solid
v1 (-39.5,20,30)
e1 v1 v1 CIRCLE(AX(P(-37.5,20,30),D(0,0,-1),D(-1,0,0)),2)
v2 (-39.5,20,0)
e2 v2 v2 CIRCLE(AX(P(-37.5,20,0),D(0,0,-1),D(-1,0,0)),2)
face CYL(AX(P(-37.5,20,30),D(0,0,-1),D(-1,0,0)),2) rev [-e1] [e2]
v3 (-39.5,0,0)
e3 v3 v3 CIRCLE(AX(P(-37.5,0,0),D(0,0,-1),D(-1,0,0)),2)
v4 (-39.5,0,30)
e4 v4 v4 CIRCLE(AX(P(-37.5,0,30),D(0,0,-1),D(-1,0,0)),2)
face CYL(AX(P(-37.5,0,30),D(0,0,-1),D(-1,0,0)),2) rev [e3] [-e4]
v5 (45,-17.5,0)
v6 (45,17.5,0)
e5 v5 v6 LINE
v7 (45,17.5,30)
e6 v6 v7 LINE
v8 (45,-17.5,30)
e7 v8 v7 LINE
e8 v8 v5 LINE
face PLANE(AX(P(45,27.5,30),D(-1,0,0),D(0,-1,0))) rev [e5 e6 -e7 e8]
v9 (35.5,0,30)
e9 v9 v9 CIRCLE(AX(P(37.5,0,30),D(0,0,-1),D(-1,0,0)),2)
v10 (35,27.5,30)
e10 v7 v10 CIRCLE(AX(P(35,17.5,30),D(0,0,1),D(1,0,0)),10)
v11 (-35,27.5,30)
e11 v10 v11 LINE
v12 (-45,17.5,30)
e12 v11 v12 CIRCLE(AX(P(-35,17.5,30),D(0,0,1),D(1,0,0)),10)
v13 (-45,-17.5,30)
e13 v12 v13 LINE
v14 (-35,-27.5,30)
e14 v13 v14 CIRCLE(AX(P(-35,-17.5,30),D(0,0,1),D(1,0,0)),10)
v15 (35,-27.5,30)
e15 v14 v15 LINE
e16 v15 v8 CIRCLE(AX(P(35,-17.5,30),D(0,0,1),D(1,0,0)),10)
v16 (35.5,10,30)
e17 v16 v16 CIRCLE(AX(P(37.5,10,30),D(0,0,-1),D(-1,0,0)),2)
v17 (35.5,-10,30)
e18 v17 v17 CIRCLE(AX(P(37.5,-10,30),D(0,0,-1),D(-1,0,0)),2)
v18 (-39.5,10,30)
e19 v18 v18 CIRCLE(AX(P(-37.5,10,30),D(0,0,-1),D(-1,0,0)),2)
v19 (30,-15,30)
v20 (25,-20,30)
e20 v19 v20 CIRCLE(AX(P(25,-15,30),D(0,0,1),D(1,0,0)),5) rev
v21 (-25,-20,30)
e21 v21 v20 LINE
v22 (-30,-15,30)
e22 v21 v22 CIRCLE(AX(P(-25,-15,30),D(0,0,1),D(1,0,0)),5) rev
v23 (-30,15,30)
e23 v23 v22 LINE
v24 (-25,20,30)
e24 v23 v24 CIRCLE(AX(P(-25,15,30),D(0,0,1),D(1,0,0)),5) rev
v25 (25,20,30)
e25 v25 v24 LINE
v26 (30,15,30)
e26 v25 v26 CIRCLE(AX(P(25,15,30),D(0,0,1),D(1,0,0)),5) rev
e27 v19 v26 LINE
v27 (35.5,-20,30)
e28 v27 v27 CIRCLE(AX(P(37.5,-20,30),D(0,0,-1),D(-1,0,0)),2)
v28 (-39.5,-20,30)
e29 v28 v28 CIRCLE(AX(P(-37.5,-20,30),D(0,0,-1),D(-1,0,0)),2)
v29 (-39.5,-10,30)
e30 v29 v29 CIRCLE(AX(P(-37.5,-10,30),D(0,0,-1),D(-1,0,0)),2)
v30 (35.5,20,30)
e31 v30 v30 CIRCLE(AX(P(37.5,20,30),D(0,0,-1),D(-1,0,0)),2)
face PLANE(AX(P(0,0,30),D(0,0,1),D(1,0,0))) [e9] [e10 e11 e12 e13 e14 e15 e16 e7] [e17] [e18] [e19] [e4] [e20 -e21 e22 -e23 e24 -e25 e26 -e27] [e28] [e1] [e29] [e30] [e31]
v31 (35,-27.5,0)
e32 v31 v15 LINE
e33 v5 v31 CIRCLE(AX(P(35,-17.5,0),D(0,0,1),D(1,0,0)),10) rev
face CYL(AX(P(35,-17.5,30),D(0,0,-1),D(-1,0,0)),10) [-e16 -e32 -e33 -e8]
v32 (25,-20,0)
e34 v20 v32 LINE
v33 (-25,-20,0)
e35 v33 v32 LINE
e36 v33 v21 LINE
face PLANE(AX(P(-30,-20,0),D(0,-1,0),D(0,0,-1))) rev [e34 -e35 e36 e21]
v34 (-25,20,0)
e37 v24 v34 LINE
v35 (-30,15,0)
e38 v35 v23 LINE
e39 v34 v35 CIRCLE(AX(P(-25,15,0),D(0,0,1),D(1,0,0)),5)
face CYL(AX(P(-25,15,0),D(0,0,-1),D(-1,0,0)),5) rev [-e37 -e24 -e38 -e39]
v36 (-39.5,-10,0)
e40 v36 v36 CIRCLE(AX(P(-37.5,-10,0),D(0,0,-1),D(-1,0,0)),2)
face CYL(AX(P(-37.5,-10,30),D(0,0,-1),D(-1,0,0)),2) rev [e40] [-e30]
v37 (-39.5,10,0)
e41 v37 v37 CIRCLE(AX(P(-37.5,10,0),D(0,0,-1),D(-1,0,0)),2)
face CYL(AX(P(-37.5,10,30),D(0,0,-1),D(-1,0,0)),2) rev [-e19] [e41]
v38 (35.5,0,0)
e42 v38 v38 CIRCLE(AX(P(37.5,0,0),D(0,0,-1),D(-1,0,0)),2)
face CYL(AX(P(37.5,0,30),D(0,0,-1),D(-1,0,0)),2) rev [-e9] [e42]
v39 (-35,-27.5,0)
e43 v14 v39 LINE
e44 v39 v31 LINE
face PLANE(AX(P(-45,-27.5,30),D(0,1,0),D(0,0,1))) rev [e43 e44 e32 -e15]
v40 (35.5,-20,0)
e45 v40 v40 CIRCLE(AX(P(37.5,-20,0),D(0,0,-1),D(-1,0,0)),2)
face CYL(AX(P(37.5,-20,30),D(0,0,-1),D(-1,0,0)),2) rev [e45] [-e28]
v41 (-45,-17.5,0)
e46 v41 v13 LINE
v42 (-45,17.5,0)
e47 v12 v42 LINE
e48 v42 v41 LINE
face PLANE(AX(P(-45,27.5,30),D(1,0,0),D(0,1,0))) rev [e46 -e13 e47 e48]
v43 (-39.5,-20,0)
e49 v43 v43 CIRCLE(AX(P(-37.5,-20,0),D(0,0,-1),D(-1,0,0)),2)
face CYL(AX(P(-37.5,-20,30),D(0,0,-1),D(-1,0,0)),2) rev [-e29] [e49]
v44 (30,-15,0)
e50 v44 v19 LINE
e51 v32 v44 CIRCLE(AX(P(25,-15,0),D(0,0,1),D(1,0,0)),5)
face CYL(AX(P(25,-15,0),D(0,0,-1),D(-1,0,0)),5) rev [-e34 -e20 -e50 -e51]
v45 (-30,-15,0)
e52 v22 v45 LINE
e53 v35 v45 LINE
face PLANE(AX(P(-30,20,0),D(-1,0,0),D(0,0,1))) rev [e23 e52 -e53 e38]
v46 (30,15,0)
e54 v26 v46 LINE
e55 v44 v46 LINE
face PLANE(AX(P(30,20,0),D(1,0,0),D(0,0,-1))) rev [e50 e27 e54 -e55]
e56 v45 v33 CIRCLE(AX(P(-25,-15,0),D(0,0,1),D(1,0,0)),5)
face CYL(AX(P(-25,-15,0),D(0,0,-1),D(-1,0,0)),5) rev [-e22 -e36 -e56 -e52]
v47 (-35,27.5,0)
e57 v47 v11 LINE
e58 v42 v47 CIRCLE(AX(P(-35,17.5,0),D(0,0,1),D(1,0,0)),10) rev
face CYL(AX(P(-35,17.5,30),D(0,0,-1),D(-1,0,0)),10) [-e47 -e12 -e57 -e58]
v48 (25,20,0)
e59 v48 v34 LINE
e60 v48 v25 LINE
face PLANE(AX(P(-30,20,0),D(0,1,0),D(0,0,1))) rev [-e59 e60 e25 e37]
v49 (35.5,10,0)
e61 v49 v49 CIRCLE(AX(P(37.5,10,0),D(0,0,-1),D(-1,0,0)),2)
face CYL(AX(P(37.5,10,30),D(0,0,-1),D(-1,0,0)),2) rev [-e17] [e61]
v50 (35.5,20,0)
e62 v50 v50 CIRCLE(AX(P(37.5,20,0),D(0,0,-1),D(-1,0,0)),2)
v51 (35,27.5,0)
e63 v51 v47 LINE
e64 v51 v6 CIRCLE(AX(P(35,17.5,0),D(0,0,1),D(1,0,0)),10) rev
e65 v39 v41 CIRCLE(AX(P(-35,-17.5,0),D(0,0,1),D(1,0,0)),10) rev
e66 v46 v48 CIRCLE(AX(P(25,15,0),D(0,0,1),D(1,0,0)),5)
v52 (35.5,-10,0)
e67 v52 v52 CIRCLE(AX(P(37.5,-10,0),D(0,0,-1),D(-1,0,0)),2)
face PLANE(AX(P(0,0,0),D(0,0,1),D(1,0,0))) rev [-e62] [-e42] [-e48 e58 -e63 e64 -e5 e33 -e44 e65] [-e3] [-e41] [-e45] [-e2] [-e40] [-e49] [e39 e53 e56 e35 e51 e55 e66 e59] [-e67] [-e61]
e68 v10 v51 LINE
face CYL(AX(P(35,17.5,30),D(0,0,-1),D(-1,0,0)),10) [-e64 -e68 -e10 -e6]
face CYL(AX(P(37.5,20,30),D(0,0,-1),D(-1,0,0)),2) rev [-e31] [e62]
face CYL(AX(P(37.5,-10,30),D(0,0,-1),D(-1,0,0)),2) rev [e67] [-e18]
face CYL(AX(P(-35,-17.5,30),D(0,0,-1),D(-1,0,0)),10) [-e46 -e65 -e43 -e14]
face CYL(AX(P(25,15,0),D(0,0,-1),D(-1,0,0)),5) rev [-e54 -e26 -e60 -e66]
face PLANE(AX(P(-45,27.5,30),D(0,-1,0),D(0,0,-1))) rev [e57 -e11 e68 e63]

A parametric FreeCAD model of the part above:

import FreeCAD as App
import Part
import Sketcher

V = App.Vector


def edges_at(feature, points):
    """Names of the edges that pass closest to the given points."""
    edges = feature.Shape.Edges
    near = lambda p: min(range(len(edges)), key=lambda i: edges[i].distToShape(Part.Vertex(*p))[0])
    return sorted({f"Edge{near(p) + 1}" for p in points})

doc = App.newDocument("Part")
body = doc.addObject("PartDesign::Body", "Body")

sketch1 = body.newObject("Sketcher::SketchObject", "Sketch")
sketch1.AttachmentSupport = (doc.getObject("XY_Plane"), [""])
sketch1.MapMode = "FlatFace"
sketch1.addGeometry(Part.LineSegment(V(-45, 27.5, 0), V(-45, -27.5, 0)), False)
sketch1.addGeometry(Part.LineSegment(V(-45, -27.5, 0), V(45, -27.5, 0)), False)
sketch1.addGeometry(Part.LineSegment(V(45, -27.5, 0), V(45, 27.5, 0)), False)
sketch1.addGeometry(Part.LineSegment(V(45, 27.5, 0), V(-45, 27.5, 0)), False)
sketch1.addConstraint(Sketcher.Constraint("Coincident", 0, 2, 1, 1))
sketch1.addConstraint(Sketcher.Constraint("Coincident", 1, 2, 2, 1))
sketch1.addConstraint(Sketcher.Constraint("Coincident", 2, 2, 3, 1))
sketch1.addConstraint(Sketcher.Constraint("Coincident", 3, 2, 0, 1))
sketch1.addConstraint(Sketcher.Constraint("Vertical", 0))
sketch1.addConstraint(Sketcher.Constraint("Horizontal", 1))
sketch1.addConstraint(Sketcher.Constraint("Vertical", 2))
sketch1.addConstraint(Sketcher.Constraint("Horizontal", 3))
sketch1.addConstraint(Sketcher.Constraint("Symmetric", 0, 2, 2, 2, -1, 1))
sketch1.addConstraint(Sketcher.Constraint("DistanceX", 1, 1, 1, 2, 90.0))
sketch1.addConstraint(Sketcher.Constraint("DistanceY", 0, 2, 0, 1, 55.0))
pad1 = body.newObject("PartDesign::Pad", "Pad")
pad1.Profile = sketch1
pad1.Length = 30

sketch2 = body.newObject("Sketcher::SketchObject", "Sketch001")
sketch2.AttachmentSupport = (doc.getObject("XY_Plane"), [""])
sketch2.MapMode = "FlatFace"
sketch2.AttachmentOffset = App.Placement(V(0, 0, 30), App.Rotation())
sketch2.addGeometry(Part.LineSegment(V(-30, 20, 0), V(-30, -20, 0)), False)
sketch2.addGeometry(Part.LineSegment(V(-30, -20, 0), V(30, -20, 0)), False)
sketch2.addGeometry(Part.LineSegment(V(30, -20, 0), V(30, 20, 0)), False)
sketch2.addGeometry(Part.LineSegment(V(30, 20, 0), V(-30, 20, 0)), False)
sketch2.addConstraint(Sketcher.Constraint("Coincident", 0, 2, 1, 1))
sketch2.addConstraint(Sketcher.Constraint("Coincident", 1, 2, 2, 1))
sketch2.addConstraint(Sketcher.Constraint("Coincident", 2, 2, 3, 1))
sketch2.addConstraint(Sketcher.Constraint("Coincident", 3, 2, 0, 1))
sketch2.addConstraint(Sketcher.Constraint("Vertical", 0))
sketch2.addConstraint(Sketcher.Constraint("Horizontal", 1))
sketch2.addConstraint(Sketcher.Constraint("Vertical", 2))
sketch2.addConstraint(Sketcher.Constraint("Horizontal", 3))
sketch2.addConstraint(Sketcher.Constraint("Symmetric", 0, 2, 2, 2, -1, 1))
sketch2.addConstraint(Sketcher.Constraint("DistanceX", 1, 1, 1, 2, 60.0))
sketch2.addConstraint(Sketcher.Constraint("DistanceY", 0, 2, 0, 1, 40.0))
pocket1 = body.newObject("PartDesign::Pocket", "Pocket")
pocket1.Profile = sketch2
pocket1.Type = "ThroughAll"

sketch3 = body.newObject("Sketcher::SketchObject", "Sketch002")
sketch3.AttachmentSupport = (doc.getObject("XY_Plane"), [""])
sketch3.MapMode = "FlatFace"
sketch3.addGeometry(Part.Circle(V(37.5, 0, 0), V(0, 0, 1), 2), False)
sketch3.addGeometry(Part.Circle(V(-37.5, 0, 0), V(0, 0, 1), 2), False)
sketch3.addConstraint(Sketcher.Constraint("Equal", 0, 1))
sketch3.addConstraint(Sketcher.Constraint("Symmetric", 0, 3, 1, 3, -1, 1))
sketch3.addConstraint(Sketcher.Constraint("PointOnObject", 0, 3, -1))
sketch3.addConstraint(Sketcher.Constraint("Diameter", 0, 4.0))
sketch3.addConstraint(Sketcher.Constraint("DistanceX", 1, 3, 0, 3, 75.0))
pocket2 = body.newObject("PartDesign::Pocket", "Pocket001")
pocket2.Profile = sketch3
pocket2.Type = "ThroughAll"
pocket2.Reversed = True
doc.recompute()

linearpattern = body.newObject("PartDesign::LinearPattern", "LinearPattern")
linearpattern.Originals = [pocket2]
linearpattern.Direction = (doc.getObject("Y_Axis"), [""])
linearpattern.Mode = "offset"
linearpattern.Offset = 10
linearpattern.Occurrences = 3
linearpattern.Reversed = True
body.Tip = linearpattern
doc.recompute()

linearpattern2 = body.newObject("PartDesign::LinearPattern", "LinearPattern001")
linearpattern2.Originals = [pocket2]
linearpattern2.Direction = (doc.getObject("Y_Axis"), [""])
linearpattern2.Mode = "offset"
linearpattern2.Offset = 10
linearpattern2.Occurrences = 3
body.Tip = linearpattern2
doc.recompute()

fillet = body.newObject("PartDesign::Fillet", "Fillet")
fillet.Base = (linearpattern2, edges_at(linearpattern2, [
    (45, -27.5, 15),
    (-45, -27.5, 15),
    (-45, 27.5, 15),
    (45, 27.5, 15),
]))
fillet.Radius = 10
doc.recompute()

fillet2 = body.newObject("PartDesign::Fillet", "Fillet001")
fillet2.Base = (fillet, edges_at(fillet, [
    (30, 20, 15),
    (30, -20, 15),
    (-30, -20, 15),
    (-30, 20, 15),
]))
fillet2.Radius = 5

doc.recompute()
